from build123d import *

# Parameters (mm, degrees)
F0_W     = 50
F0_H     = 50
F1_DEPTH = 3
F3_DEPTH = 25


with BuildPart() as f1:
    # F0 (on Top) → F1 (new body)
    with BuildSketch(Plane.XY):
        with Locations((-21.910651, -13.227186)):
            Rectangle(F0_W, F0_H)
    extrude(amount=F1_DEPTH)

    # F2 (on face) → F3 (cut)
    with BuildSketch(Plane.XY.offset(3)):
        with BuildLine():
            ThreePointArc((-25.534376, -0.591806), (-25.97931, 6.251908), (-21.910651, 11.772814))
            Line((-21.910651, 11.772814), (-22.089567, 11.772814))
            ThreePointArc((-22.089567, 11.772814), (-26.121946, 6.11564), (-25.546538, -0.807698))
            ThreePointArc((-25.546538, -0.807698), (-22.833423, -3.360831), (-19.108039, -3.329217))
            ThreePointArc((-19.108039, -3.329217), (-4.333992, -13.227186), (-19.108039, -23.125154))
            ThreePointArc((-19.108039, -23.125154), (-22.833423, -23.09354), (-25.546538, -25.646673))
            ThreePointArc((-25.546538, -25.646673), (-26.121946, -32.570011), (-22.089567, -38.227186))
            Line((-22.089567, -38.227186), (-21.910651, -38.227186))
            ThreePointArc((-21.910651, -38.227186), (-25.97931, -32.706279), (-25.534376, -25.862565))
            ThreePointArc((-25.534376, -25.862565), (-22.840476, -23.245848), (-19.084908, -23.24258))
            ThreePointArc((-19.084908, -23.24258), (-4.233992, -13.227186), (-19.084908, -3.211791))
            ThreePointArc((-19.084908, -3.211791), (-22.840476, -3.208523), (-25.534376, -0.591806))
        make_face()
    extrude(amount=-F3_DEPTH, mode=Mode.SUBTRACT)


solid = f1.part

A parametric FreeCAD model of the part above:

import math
import FreeCAD as App
import Part
import Sketcher

V = App.Vector


def add_polygon(sketch, points):
    """Adds a closed chain of lines whose ends are joined by coincident constraints."""
    first, n = sketch.GeometryCount, len(points)
    for a, b in zip(points, points[1:] + points[:1]):
        sketch.addGeometry(Part.LineSegment(App.Vector(*a, 0), App.Vector(*b, 0)), False)
    for i in range(n):
        sketch.addConstraint(Sketcher.Constraint("Coincident", first + i, 2, first + (i + 1) % n, 1))

doc = App.newDocument("Part")
body = doc.addObject("PartDesign::Body", "Body")
body.AllowCompound = True

sketch1 = doc.addObject("Sketcher::SketchObject", "Sketch")
body.addObject(sketch1)
sketch1.AttachmentSupport = (doc.XY_Plane, [""])
sketch1.MapMode = "FlatFace"
add_polygon(sketch1, [(-47, 12), (-47, -38), (3, -38), (3, 12)])
sketch1.addConstraint(Sketcher.Constraint("Vertical", 0))
sketch1.addConstraint(Sketcher.Constraint("Horizontal", 1))
sketch1.addConstraint(Sketcher.Constraint("Vertical", 2))
sketch1.addConstraint(Sketcher.Constraint("Horizontal", 3))
sketch1.addConstraint(Sketcher.Constraint("Equal", 3, 0))
sketch1.addConstraint(Sketcher.Constraint("DistanceX", 1, 1, 1, 2, 50.0))
sketch1.addConstraint(Sketcher.Constraint("DistanceX", 0, 2, -1, 1, 46.910651))
sketch1.addConstraint(Sketcher.Constraint("DistanceY", 0, 2, -1, 1, 38.227186))
pad1 = doc.addObject("PartDesign::Pad", "Pad")
body.addObject(pad1)
pad1.Profile = sketch1
pad1.Length = 3

sketch2 = doc.addObject("Sketcher::SketchObject", "Sketch001")
body.addObject(sketch2)
sketch2.AttachmentSupport = (doc.XY_Plane, [""])
sketch2.MapMode = "FlatFace"
sketch2.AttachmentOffset = App.Placement(V(0, 0, 3), App.Rotation())
sketch2.addGeometry(Part.ArcOfCircle(Part.Circle(V(-16.38, 3.44, 0), V(0, 0, 1), 10), math.radians(124), math.radians(204)), False)
sketch2.addGeometry(Part.LineSegment(V(-21.91, 11.77, 0), V(-22.09, 11.77, 0)), False)
sketch2.addGeometry(Part.ArcOfCircle(Part.Circle(V(-16.38, 3.44, 0), V(0, 0, 1), 10.1), math.radians(124), math.radians(205)), False)
sketch2.addGeometry(Part.ArcOfCircle(Part.Circle(V(-21.01, 1.29, 0), V(0, 0, 1), 5), math.radians(-155), math.radians(-68)), False)
sketch2.addGeometry(Part.ArcOfCircle(Part.Circle(V(-15.04, -13.23, 0), V(0, 0, 1), 10.7), math.radians(-112), math.radians(112)), False)
sketch2.addGeometry(Part.ArcOfCircle(Part.Circle(V(-21.01, -27.75, 0), V(0, 0, 1), 5), math.radians(68), math.radians(155)), False)
sketch2.addGeometry(Part.ArcOfCircle(Part.Circle(V(-16.38, -29.89, 0), V(0, 0, 1), 10.1), math.radians(155), math.radians(236)), False)
sketch2.addGeometry(Part.LineSegment(V(-22.09, -38.23, 0), V(-21.91, -38.23, 0)), False)
sketch2.addGeometry(Part.ArcOfCircle(Part.Circle(V(-16.38, -29.89, 0), V(0, 0, 1), 10), math.radians(156), math.radians(236)), False)
sketch2.addGeometry(Part.ArcOfCircle(Part.Circle(V(-20.96, -27.88, 0), V(0, 0, 1), 5), math.radians(68), math.radians(156)), False)
sketch2.addGeometry(Part.ArcOfCircle(Part.Circle(V(-15.04, -13.23, 0), V(0, 0, 1), 10.8), math.radians(-112), math.radians(112)), False)
sketch2.addGeometry(Part.ArcOfCircle(Part.Circle(V(-20.96, 1.42, 0), V(0, 0, 1), 5), math.radians(-156), math.radians(-68)), False)
sketch2.addConstraint(Sketcher.Constraint("Coincident", 0, 1, 1, 1))
sketch2.addConstraint(Sketcher.Constraint("Coincident", 1, 2, 2, 1))
sketch2.addConstraint(Sketcher.Constraint("Tangent", 2, 2, 3, 1))
sketch2.addConstraint(Sketcher.Constraint("Tangent", 3, 2, 4, 2))
sketch2.addConstraint(Sketcher.Constraint("Tangent", 4, 1, 5, 1))
sketch2.addConstraint(Sketcher.Constraint("Tangent", 5, 2, 6, 1))
sketch2.addConstraint(Sketcher.Constraint("Coincident", 6, 2, 7, 1))
sketch2.addConstraint(Sketcher.Constraint("Coincident", 7, 2, 8, 2))
sketch2.addConstraint(Sketcher.Constraint("Tangent", 8, 1, 9, 2))
sketch2.addConstraint(Sketcher.Constraint("Tangent", 9, 1, 10, 1))
sketch2.addConstraint(Sketcher.Constraint("Tangent", 10, 2, 11, 2))
sketch2.addConstraint(Sketcher.Constraint("Tangent", 11, 1, 0, 2))
sketch2.addConstraint(Sketcher.Constraint("Horizontal", 1))
sketch2.addConstraint(Sketcher.Constraint("Horizontal", 7))
sketch2.addConstraint(Sketcher.Constraint("Coincident", 2, 3, 0, 3))
sketch2.addConstraint(Sketcher.Constraint("Coincident", 8, 3, 6, 3))
sketch2.addConstraint(Sketcher.Constraint("Coincident", 10, 3, 4, 3))
sketch2.addConstraint(Sketcher.Constraint("Equal", 3, 5))
sketch2.addConstraint(Sketcher.Constraint("Equal", 2, 6))
sketch2.addConstraint(Sketcher.Constraint("Equal", 0, 8))
sketch2.addConstraint(Sketcher.Constraint("Equal", 5, 9))
sketch2.addConstraint(Sketcher.Constraint("Equal", 9, 11))
sketch2.addConstraint(Sketcher.Constraint("Vertical", 3, 3, 5, 3))
sketch2.addConstraint(Sketcher.Constraint("Vertical", 2, 3, 6, 3))
sketch2.addConstraint(Sketcher.Constraint("Vertical", 1, 2, 6, 2))
sketch2.addConstraint(Sketcher.Constraint("Radius", 0, 9.999999))
sketch2.addConstraint(Sketcher.Constraint("Radius", 3, 4.999999))
sketch2.addConstraint(Sketcher.Constraint("Radius", 2, 10.099999))
sketch2.addConstraint(Sketcher.Constraint("DistanceY", 10, 3, 0, 1, 24.999999))
sketch2.addConstraint(Sketcher.Constraint("Radius", 4, 10.702628))
sketch2.addConstraint(Sketcher.Constraint("Radius", 10, 10.802628))
sketch2.addConstraint(Sketcher.Constraint("DistanceY", 5, 3, 3, 3, 29.0441))
sketch2.addConstraint(Sketcher.Constraint("DistanceX", 2, 2, 3, 2, 6.438499))
sketch2.addConstraint(Sketcher.Constraint("DistanceY", -1, 1, 0, 3, 3.439481))
sketch2.addConstraint(Sketcher.Constraint("DistanceX", 4, 3, -1, 1, 15.03662))
pocket1 = doc.addObject("PartDesign::Pocket", "Pocket")
body.addObject(pocket1)
pocket1.Profile = sketch2
pocket1.Length = 25

doc.recompute()
